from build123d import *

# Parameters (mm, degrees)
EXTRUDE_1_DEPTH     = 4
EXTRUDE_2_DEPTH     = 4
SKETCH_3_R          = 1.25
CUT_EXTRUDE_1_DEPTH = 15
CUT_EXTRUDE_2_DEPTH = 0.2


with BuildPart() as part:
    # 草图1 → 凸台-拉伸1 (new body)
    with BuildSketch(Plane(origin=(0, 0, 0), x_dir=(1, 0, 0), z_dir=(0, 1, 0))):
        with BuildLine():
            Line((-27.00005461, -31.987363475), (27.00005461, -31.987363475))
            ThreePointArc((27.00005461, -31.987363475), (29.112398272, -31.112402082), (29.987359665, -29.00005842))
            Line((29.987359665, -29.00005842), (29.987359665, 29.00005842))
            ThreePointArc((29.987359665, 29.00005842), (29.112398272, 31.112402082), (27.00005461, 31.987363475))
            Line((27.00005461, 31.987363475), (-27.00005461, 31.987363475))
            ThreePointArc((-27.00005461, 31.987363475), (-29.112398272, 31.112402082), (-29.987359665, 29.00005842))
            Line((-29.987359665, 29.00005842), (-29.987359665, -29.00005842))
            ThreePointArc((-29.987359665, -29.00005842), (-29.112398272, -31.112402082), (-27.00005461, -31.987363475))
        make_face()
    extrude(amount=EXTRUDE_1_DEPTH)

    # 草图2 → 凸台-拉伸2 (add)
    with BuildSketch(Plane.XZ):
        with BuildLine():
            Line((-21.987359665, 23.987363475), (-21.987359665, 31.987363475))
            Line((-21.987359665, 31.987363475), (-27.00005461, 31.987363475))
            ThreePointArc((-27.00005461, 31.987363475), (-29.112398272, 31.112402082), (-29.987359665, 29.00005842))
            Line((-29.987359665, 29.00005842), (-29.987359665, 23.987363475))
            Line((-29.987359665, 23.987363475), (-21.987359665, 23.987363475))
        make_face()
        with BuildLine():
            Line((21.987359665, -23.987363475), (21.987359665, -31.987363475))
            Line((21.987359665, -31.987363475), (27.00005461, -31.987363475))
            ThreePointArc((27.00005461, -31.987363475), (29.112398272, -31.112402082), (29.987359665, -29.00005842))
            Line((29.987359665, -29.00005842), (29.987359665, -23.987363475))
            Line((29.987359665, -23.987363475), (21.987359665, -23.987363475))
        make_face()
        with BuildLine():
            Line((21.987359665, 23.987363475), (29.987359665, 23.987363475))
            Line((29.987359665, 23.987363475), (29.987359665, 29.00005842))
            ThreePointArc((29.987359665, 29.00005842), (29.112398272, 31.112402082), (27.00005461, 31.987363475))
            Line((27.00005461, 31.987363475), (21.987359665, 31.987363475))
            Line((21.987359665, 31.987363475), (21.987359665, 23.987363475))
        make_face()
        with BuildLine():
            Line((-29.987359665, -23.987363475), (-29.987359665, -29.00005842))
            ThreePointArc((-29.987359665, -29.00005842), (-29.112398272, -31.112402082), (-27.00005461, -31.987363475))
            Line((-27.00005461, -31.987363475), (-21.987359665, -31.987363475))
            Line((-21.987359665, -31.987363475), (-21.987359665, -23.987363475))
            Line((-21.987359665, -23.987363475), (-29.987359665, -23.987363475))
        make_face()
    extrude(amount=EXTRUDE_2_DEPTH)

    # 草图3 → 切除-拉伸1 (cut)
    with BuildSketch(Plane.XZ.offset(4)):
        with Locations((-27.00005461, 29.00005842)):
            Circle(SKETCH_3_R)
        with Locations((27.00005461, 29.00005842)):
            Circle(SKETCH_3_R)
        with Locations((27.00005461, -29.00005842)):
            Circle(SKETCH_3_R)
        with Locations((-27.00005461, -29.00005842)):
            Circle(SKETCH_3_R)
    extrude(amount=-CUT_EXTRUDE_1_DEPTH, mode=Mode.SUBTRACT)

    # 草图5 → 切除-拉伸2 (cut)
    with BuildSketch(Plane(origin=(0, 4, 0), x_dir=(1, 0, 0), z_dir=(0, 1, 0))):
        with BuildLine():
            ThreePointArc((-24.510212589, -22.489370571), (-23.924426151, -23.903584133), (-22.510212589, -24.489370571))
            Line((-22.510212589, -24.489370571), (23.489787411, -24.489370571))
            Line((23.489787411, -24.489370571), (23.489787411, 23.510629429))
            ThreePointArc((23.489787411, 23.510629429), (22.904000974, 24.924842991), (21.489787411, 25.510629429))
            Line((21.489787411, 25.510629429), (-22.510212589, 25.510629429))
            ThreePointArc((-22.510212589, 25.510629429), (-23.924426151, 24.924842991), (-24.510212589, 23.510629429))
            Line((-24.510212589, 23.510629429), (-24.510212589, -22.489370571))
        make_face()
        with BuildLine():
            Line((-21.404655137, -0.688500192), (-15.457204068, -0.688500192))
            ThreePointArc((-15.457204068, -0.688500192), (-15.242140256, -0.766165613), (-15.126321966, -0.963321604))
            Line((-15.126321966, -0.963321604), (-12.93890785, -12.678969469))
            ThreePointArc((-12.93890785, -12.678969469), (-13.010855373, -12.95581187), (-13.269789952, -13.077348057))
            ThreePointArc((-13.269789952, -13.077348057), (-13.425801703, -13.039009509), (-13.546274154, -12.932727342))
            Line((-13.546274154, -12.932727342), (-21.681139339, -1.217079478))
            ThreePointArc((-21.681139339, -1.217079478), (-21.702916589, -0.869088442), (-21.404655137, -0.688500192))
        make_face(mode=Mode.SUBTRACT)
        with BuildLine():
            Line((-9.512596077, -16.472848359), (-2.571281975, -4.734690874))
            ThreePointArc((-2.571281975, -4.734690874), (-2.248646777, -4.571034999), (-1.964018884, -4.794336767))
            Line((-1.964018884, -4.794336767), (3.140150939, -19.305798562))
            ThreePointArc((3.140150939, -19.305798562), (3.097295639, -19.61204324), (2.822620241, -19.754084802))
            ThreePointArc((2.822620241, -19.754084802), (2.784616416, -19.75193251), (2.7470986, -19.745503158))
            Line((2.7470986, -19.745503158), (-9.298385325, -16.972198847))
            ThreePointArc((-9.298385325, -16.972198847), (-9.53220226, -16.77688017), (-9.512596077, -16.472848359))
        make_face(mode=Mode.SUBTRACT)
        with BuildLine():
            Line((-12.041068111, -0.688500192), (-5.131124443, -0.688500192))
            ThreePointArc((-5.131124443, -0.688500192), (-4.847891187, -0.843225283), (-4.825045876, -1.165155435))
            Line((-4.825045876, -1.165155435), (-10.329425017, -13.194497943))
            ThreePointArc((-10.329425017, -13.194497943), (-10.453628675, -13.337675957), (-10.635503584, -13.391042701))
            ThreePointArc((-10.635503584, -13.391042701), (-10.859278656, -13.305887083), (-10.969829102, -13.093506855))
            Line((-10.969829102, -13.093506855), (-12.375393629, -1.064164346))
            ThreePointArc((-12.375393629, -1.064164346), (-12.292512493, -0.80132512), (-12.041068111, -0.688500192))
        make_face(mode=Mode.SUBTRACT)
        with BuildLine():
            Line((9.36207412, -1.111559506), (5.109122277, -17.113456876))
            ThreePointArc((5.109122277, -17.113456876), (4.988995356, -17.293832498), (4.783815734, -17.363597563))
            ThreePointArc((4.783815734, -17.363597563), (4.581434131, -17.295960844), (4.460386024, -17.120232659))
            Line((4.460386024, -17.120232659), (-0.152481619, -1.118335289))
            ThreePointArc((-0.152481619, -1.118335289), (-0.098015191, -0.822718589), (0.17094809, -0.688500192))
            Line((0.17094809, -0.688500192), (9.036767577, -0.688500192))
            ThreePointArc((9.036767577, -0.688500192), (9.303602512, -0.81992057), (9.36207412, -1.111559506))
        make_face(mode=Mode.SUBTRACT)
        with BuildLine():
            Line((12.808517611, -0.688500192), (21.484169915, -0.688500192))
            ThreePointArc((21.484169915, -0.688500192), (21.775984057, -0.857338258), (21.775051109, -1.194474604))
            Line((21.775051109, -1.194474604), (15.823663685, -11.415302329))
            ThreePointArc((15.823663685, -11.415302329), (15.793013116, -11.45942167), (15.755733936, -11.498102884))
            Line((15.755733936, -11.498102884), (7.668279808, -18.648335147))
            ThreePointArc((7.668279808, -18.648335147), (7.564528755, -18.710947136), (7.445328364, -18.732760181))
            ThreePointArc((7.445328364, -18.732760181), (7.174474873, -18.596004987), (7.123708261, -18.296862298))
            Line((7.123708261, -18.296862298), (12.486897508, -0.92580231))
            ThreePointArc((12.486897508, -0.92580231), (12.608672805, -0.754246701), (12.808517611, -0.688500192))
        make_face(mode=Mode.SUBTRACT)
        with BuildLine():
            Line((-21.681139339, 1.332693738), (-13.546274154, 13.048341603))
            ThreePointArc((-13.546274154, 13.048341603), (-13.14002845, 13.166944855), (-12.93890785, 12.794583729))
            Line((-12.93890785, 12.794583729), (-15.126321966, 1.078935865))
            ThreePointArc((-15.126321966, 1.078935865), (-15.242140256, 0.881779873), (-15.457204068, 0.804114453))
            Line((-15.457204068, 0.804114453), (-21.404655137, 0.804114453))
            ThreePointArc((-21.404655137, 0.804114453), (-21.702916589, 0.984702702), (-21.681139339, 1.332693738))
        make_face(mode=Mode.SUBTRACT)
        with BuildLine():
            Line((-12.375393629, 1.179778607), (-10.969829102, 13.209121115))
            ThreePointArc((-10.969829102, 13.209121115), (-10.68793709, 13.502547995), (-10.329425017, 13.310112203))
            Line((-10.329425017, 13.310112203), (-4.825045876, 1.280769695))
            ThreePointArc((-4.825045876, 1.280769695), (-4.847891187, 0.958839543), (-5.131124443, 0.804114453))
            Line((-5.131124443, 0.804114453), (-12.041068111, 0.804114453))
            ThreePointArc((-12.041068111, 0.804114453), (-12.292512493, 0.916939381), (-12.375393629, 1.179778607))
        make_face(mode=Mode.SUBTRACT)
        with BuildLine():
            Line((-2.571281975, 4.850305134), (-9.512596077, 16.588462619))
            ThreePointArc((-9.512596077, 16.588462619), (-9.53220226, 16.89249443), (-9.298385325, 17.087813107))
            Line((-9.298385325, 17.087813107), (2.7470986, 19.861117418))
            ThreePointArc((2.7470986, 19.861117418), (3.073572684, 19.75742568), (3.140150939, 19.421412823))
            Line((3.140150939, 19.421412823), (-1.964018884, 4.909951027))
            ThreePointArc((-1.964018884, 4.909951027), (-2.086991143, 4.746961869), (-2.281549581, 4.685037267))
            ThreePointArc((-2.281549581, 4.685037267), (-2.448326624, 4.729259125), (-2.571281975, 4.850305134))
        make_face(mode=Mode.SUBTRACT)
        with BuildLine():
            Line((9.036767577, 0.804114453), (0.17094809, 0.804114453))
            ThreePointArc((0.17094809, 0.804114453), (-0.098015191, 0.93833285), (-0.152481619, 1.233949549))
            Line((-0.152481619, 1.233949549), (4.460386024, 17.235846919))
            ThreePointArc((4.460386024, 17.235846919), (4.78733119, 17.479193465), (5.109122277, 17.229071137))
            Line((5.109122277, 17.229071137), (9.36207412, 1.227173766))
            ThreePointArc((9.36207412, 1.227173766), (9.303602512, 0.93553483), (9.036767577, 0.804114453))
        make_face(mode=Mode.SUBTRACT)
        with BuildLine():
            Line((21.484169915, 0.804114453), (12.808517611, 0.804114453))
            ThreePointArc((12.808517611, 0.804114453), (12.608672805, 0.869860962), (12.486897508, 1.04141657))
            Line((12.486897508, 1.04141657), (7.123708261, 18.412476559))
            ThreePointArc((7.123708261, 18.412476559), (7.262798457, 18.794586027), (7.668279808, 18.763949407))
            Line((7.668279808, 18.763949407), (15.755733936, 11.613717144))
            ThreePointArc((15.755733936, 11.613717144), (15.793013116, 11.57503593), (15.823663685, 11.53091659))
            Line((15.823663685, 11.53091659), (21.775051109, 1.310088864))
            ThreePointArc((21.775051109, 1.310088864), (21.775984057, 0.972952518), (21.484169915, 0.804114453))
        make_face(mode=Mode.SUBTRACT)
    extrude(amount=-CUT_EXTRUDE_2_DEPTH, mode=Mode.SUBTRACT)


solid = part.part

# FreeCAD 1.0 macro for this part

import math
import FreeCAD as App
import Part
import Sketcher
from FreeCAD import Vector
Q = App.Units.Quantity

doc = App.newDocument("Part")
body = doc.addObject("PartDesign::Body", "Body")

sketch1 = body.newObject("Sketcher::SketchObject", "Sketch")
sketch1.AttachmentSupport = (doc.getObject("XZ_Plane"), [""])
sketch1.MapMode = "FlatFace"
sketch1.addGeometry(Part.LineSegment(Vector(-27, 32, 0), Vector(27, 32, 0)), False)
sketch1.addGeometry(Part.ArcOfCircle(Part.Circle(Vector(27, 29, 0), Vector(0, 0, 1), 3), math.radians(0), math.radians(90)), False)
sketch1.addGeometry(Part.LineSegment(Vector(30, 29, 0), Vector(30, -29, 0)), False)
sketch1.addGeometry(Part.ArcOfCircle(Part.Circle(Vector(27, -29, 0), Vector(0, 0, 1), 3), math.radians(-90), math.radians(0)), False)
sketch1.addGeometry(Part.LineSegment(Vector(27, -32, 0), Vector(-27, -32, 0)), False)
sketch1.addGeometry(Part.ArcOfCircle(Part.Circle(Vector(-27, -29, 0), Vector(0, 0, 1), 3), math.radians(180), math.radians(270)), False)
sketch1.addGeometry(Part.LineSegment(Vector(-30, -29, 0), Vector(-30, 29, 0)), False)
sketch1.addGeometry(Part.ArcOfCircle(Part.Circle(Vector(-27, 29, 0), Vector(0, 0, 1), 3), math.radians(90), math.radians(180)), False)
sketch1.addConstraint(Sketcher.Constraint("Tangent", 0, 2, 1, 2))
sketch1.addConstraint(Sketcher.Constraint("Tangent", 1, 1, 2, 1))
sketch1.addConstraint(Sketcher.Constraint("Tangent", 2, 2, 3, 2))
sketch1.addConstraint(Sketcher.Constraint("Tangent", 3, 1, 4, 1))
sketch1.addConstraint(Sketcher.Constraint("Tangent", 4, 2, 5, 2))
sketch1.addConstraint(Sketcher.Constraint("Tangent", 5, 1, 6, 1))
sketch1.addConstraint(Sketcher.Constraint("Tangent", 6, 2, 7, 2))
sketch1.addConstraint(Sketcher.Constraint("Tangent", 7, 1, 0, 1))
sketch1.addConstraint(Sketcher.Constraint("Horizontal", 0))
sketch1.addConstraint(Sketcher.Constraint("Vertical", 2))
sketch1.addConstraint(Sketcher.Constraint("Horizontal", 4))
sketch1.addConstraint(Sketcher.Constraint("Vertical", 6))
sketch1.addConstraint(Sketcher.Constraint("Equal", 1, 3))
sketch1.addConstraint(Sketcher.Constraint("Equal", 3, 5))
sketch1.addConstraint(Sketcher.Constraint("Equal", 5, 7))
sketch1.addConstraint(Sketcher.Constraint("Symmetric", 1, 3, 5, 3, -1, 1))
sketch1.addConstraint(Sketcher.Constraint("Radius", 1, Q("2.987305 mm")))
sketch1.addConstraint(Sketcher.Constraint("DistanceX", 0, 1, 0, 2, Q("54.000109 mm")))
sketch1.addConstraint(Sketcher.Constraint("DistanceY", 2, 2, 2, 1, Q("58.000117 mm")))
pad1 = body.newObject("PartDesign::Pad", "Pad")
pad1.Profile = sketch1
pad1.Length = 4
pad1.Reversed = True

sketch2 = body.newObject("Sketcher::SketchObject", "Sketch001")
sketch2.AttachmentSupport = (doc.getObject("XZ_Plane"), [""])
sketch2.MapMode = "FlatFace"
sketch2.addGeometry(Part.LineSegment(Vector(-22, 24, 0), Vector(-22, 32, 0)), False)
sketch2.addGeometry(Part.LineSegment(Vector(-22, 32, 0), Vector(-27, 32, 0)), False)
sketch2.addGeometry(Part.ArcOfCircle(Part.Circle(Vector(-27, 29, 0), Vector(0, 0, 1), 3), math.radians(90), math.radians(180)), False)
sketch2.addGeometry(Part.LineSegment(Vector(-30, 29, 0), Vector(-30, 24, 0)), False)
sketch2.addGeometry(Part.LineSegment(Vector(-30, 24, 0), Vector(-22, 24, 0)), False)
sketch2.addGeometry(Part.LineSegment(Vector(22, -24, 0), Vector(22, -32, 0)), False)
sketch2.addGeometry(Part.LineSegment(Vector(22, -32, 0), Vector(27, -32, 0)), False)
sketch2.addGeometry(Part.ArcOfCircle(Part.Circle(Vector(27, -29, 0), Vector(0, 0, 1), 3), math.radians(-90), math.radians(0)), False)
sketch2.addGeometry(Part.LineSegment(Vector(30, -29, 0), Vector(30, -24, 0)), False)
sketch2.addGeometry(Part.LineSegment(Vector(30, -24, 0), Vector(22, -24, 0)), False)
sketch2.addGeometry(Part.LineSegment(Vector(22, 24, 0), Vector(30, 24, 0)), False)
sketch2.addGeometry(Part.LineSegment(Vector(30, 24, 0), Vector(30, 29, 0)), False)
sketch2.addGeometry(Part.ArcOfCircle(Part.Circle(Vector(27, 29, 0), Vector(0, 0, 1), 3), math.radians(0), math.radians(90)), False)
sketch2.addGeometry(Part.LineSegment(Vector(27, 32, 0), Vector(22, 32, 0)), False)
sketch2.addGeometry(Part.LineSegment(Vector(22, 32, 0), Vector(22, 24, 0)), False)
sketch2.addGeometry(Part.LineSegment(Vector(-30, -24, 0), Vector(-30, -29, 0)), False)
sketch2.addGeometry(Part.ArcOfCircle(Part.Circle(Vector(-27, -29, 0), Vector(0, 0, 1), 3), math.radians(180), math.radians(270)), False)
sketch2.addGeometry(Part.LineSegment(Vector(-27, -32, 0), Vector(-22, -32, 0)), False)
sketch2.addGeometry(Part.LineSegment(Vector(-22, -32, 0), Vector(-22, -24, 0)), False)
sketch2.addGeometry(Part.LineSegment(Vector(-22, -24, 0), Vector(-30, -24, 0)), False)
sketch2.addConstraint(Sketcher.Constraint("Coincident", 0, 2, 1, 1))
sketch2.addConstraint(Sketcher.Constraint("Tangent", 1, 2, 2, 1))
sketch2.addConstraint(Sketcher.Constraint("Tangent", 2, 2, 3, 1))
sketch2.addConstraint(Sketcher.Constraint("Coincident", 3, 2, 4, 1))
sketch2.addConstraint(Sketcher.Constraint("Coincident", 4, 2, 0, 1))
sketch2.addConstraint(Sketcher.Constraint("Coincident", 5, 2, 6, 1))
sketch2.addConstraint(Sketcher.Constraint("Tangent", 6, 2, 7, 1))
sketch2.addConstraint(Sketcher.Constraint("Tangent", 7, 2, 8, 1))
sketch2.addConstraint(Sketcher.Constraint("Coincident", 8, 2, 9, 1))
sketch2.addConstraint(Sketcher.Constraint("Coincident", 9, 2, 5, 1))
sketch2.addConstraint(Sketcher.Constraint("Coincident", 10, 2, 11, 1))
sketch2.addConstraint(Sketcher.Constraint("Tangent", 11, 2, 12, 1))
sketch2.addConstraint(Sketcher.Constraint("Tangent", 12, 2, 13, 1))
sketch2.addConstraint(Sketcher.Constraint("Coincident", 13, 2, 14, 1))
sketch2.addConstraint(Sketcher.Constraint("Coincident", 14, 2, 10, 1))
sketch2.addConstraint(Sketcher.Constraint("Tangent", 15, 2, 16, 1))
sketch2.addConstraint(Sketcher.Constraint("Tangent", 16, 2, 17, 1))
sketch2.addConstraint(Sketcher.Constraint("Coincident", 17, 2, 18, 1))
sketch2.addConstraint(Sketcher.Constraint("Coincident", 18, 2, 19, 1))
sketch2.addConstraint(Sketcher.Constraint("Coincident", 19, 2, 15, 1))
sketch2.addConstraint(Sketcher.Constraint("Vertical", 0))
sketch2.addConstraint(Sketcher.Constraint("Horizontal", 1))
sketch2.addConstraint(Sketcher.Constraint("Vertical", 3))
sketch2.addConstraint(Sketcher.Constraint("Horizontal", 4))
sketch2.addConstraint(Sketcher.Constraint("Vertical", 5))
sketch2.addConstraint(Sketcher.Constraint("Horizontal", 6))
sketch2.addConstraint(Sketcher.Constraint("Vertical", 8))
sketch2.addConstraint(Sketcher.Constraint("Horizontal", 9))
sketch2.addConstraint(Sketcher.Constraint("Horizontal", 10))
sketch2.addConstraint(Sketcher.Constraint("Vertical", 11))
sketch2.addConstraint(Sketcher.Constraint("Horizontal", 13))
sketch2.addConstraint(Sketcher.Constraint("Vertical", 14))
sketch2.addConstraint(Sketcher.Constraint("Vertical", 15))
sketch2.addConstraint(Sketcher.Constraint("Horizontal", 17))
sketch2.addConstraint(Sketcher.Constraint("Vertical", 18))
sketch2.addConstraint(Sketcher.Constraint("Horizontal", 19))
sketch2.addConstraint(Sketcher.Constraint("Equal", 2, 7))
sketch2.addConstraint(Sketcher.Constraint("Equal", 7, 12))
sketch2.addConstraint(Sketcher.Constraint("Equal", 12, 16))
sketch2.addConstraint(Sketcher.Constraint("Symmetric", 2, 3, 7, 3, -1, 1))
sketch2.addConstraint(Sketcher.Constraint("Symmetric", 12, 3, 16, 3, -1, 1))
sketch2.addConstraint(Sketcher.Constraint("Symmetric", 4, 2, 9, 2, -1, 1))
sketch2.addConstraint(Sketcher.Constraint("Symmetric", 14, 2, 18, 2, -1, 1))
sketch2.addConstraint(Sketcher.Constraint("Symmetric", 2, 3, 12, 3, -2))
sketch2.addConstraint(Sketcher.Constraint("Symmetric", 4, 2, 14, 2, -2))
sketch2.addConstraint(Sketcher.Constraint("Equal", 19, 0))
sketch2.addConstraint(Sketcher.Constraint("DistanceX", 4, 1, 4, 2, Q("8 mm")))
sketch2.addConstraint(Sketcher.Constraint("Radius", 2, Q("2.987305 mm")))
sketch2.addConstraint(Sketcher.Constraint("DistanceY", -1, 1, 2, 3, Q("29.000058 mm")))
sketch2.addConstraint(Sketcher.Constraint("DistanceX", 0, 2, -1, 1, Q("21.98736 mm")))
pad2 = body.newObject("PartDesign::Pad", "Pad001")
pad2.Profile = sketch2
pad2.Length = 4

sketch3 = body.newObject("Sketcher::SketchObject", "Sketch002")
sketch3.AttachmentSupport = (doc.getObject("XZ_Plane"), [""])
sketch3.MapMode = "FlatFace"
sketch3.AttachmentOffset = App.Placement(Vector(0, 0, 4), App.Rotation())
sketch3.addGeometry(Part.Circle(Vector(-27, 29, 0), Vector(0, 0, 1), 1.2), False)
sketch3.addGeometry(Part.Circle(Vector(27, 29, 0), Vector(0, 0, 1), 1.2), False)
sketch3.addGeometry(Part.Circle(Vector(27, -29, 0), Vector(0, 0, 1), 1.2), False)
sketch3.addGeometry(Part.Circle(Vector(-27, -29, 0), Vector(0, 0, 1), 1.2), False)
sketch3.addConstraint(Sketcher.Constraint("Equal", 0, 1))
sketch3.addConstraint(Sketcher.Constraint("Equal", 1, 2))
sketch3.addConstraint(Sketcher.Constraint("Equal", 2, 3))
sketch3.addConstraint(Sketcher.Constraint("Symmetric", 0, 3, 2, 3, -1, 1))
sketch3.addConstraint(Sketcher.Constraint("Symmetric", 1, 3, 3, 3, -1, 1))
sketch3.addConstraint(Sketcher.Constraint("Symmetric", 0, 3, 1, 3, -2))
sketch3.addConstraint(Sketcher.Constraint("Diameter", 0, Q("2.5 mm")))
sketch3.addConstraint(Sketcher.Constraint("DistanceY", -1, 1, 0, 3, Q("29.000058 mm")))
sketch3.addConstraint(Sketcher.Constraint("DistanceX", 0, 3, 1, 3, Q("54.000109 mm")))
pocket1 = body.newObject("PartDesign::Pocket", "Pocket")
pocket1.Profile = sketch3
pocket1.Length = 15

sketch4 = body.newObject("Sketcher::SketchObject", "Sketch003")
sketch4.AttachmentSupport = (doc.getObject("XZ_Plane"), [""])
sketch4.MapMode = "FlatFace"
sketch4.AttachmentOffset = App.Placement(Vector(0, 0, -4), App.Rotation())
sketch4.addGeometry(Part.ArcOfCircle(Part.Circle(Vector(-22.510213, 22.489371, 0), Vector(0, 0, 1), 2), math.radians(90), math.radians(180)), False)
sketch4.addGeometry(Part.LineSegment(Vector(-22.510213, 24.489371, 0), Vector(23.489787, 24.489371, 0)), False)
sketch4.addGeometry(Part.LineSegment(Vector(23.489787, 24.489371, 0), Vector(23.489787, -23.510629, 0)), False)
sketch4.addGeometry(Part.ArcOfCircle(Part.Circle(Vector(21.489787, -23.510629, 0), Vector(0, 0, 1), 2), math.radians(-90), math.radians(0)), False)
sketch4.addGeometry(Part.LineSegment(Vector(21.489787, -25.510629, 0), Vector(-22.510213, -25.510629, 0)), False)
sketch4.addGeometry(Part.ArcOfCircle(Part.Circle(Vector(-22.510213, -23.510629, 0), Vector(0, 0, 1), 2), math.radians(-180), math.radians(-90)), False)
sketch4.addGeometry(Part.LineSegment(Vector(-24.510213, -23.510629, 0), Vector(-24.510213, 22.489371, 0)), False)
sketch4.addGeometry(Part.ArcOfCircle(Part.Circle(Vector(-9.222864, 16.64418, 0), Vector(0, 0, 1), 0.3366), math.radians(102.965608), math.radians(210.597784)), False)
sketch4.addGeometry(Part.LineSegment(Vector(-9.512596, 16.472848, 0), Vector(-2.571282, 4.734691, 0)), False)
sketch4.addGeometry(Part.ArcOfCircle(Part.Circle(Vector(-2.28155, 4.906023, 0), Vector(0, 0, 1), 0.3366), math.radians(-149.402216), math.radians(-19.37849)), False)
sketch4.addGeometry(Part.LineSegment(Vector(-1.964019, 4.794337, 0), Vector(3.140151, 19.305799, 0)), False)
sketch4.addGeometry(Part.ArcOfCircle(Part.Circle(Vector(2.82262, 19.417485, 0), Vector(0, 0, 1), 0.3366), math.radians(-19.37849), math.radians(90)), False)
sketch4.addGeometry(Part.ArcOfCircle(Part.Circle(Vector(2.82262, 19.417485, 0), Vector(0, 0, 1), 0.3366), math.radians(90), math.radians(102.965607)), False)
sketch4.addGeometry(Part.LineSegment(Vector(2.747099, 19.745503, 0), Vector(-9.298385, 16.972199, 0)), False)
sketch4.addGeometry(Part.ArcOfCircle(Part.Circle(Vector(-21.404655, 1.0251, 0), Vector(0, 0, 1), 0.3366), math.radians(145.225473), math.radians(270)), False)
sketch4.addGeometry(Part.LineSegment(Vector(-21.404655, 0.6885, 0), Vector(-15.457204, 0.6885, 0)), False)
sketch4.addGeometry(Part.ArcOfCircle(Part.Circle(Vector(-15.457204, 1.0251, 0), Vector(0, 0, 1), 0.3366), math.radians(-90), math.radians(-10.575854)), False)
sketch4.addGeometry(Part.LineSegment(Vector(-15.126322, 0.963322, 0), Vector(-12.938908, 12.678969, 0)), False)
sketch4.addGeometry(Part.ArcOfCircle(Part.Circle(Vector(-13.26979, 12.740748, 0), Vector(0, 0, 1), 0.3366), math.radians(-10.575854), math.radians(90)), False)
sketch4.addGeometry(Part.ArcOfCircle(Part.Circle(Vector(-13.26979, 12.740748, 0), Vector(0, 0, 1), 0.3366), math.radians(90), math.radians(145.225473)), False)
sketch4.addGeometry(Part.LineSegment(Vector(-13.546274, 12.932727, 0), Vector(-21.681139, 1.217079, 0)), False)
sketch4.addGeometry(Part.ArcOfCircle(Part.Circle(Vector(-12.041068, 1.0251, 0), Vector(0, 0, 1), 0.3366), math.radians(173.335513), math.radians(270)), False)
sketch4.addGeometry(Part.LineSegment(Vector(-12.041068, 0.6885, 0), Vector(-5.131124, 0.6885, 0)), False)
sketch4.addGeometry(Part.ArcOfCircle(Part.Circle(Vector(-5.131124, 1.0251, 0), Vector(0, 0, 1), 0.3366), math.radians(-90), math.radians(24.587856)), False)
sketch4.addGeometry(Part.LineSegment(Vector(-4.825046, 1.165155, 0), Vector(-10.329425, 13.194498, 0)), False)
sketch4.addGeometry(Part.ArcOfCircle(Part.Circle(Vector(-10.635504, 13.054443, 0), Vector(0, 0, 1), 0.3366), math.radians(24.587856), math.radians(90)), False)
sketch4.addGeometry(Part.ArcOfCircle(Part.Circle(Vector(-10.635504, 13.054443, 0), Vector(0, 0, 1), 0.3366), math.radians(90), math.radians(173.335513)), False)
sketch4.addGeometry(Part.LineSegment(Vector(-10.969829, 13.093507, 0), Vector(-12.375394, 1.064164, 0)), False)
sketch4.addGeometry(Part.ArcOfCircle(Part.Circle(Vector(9.036768, 1.0251, 0), Vector(0, 0, 1), 0.3366), math.radians(-90), math.radians(14.883869)), False)
sketch4.addGeometry(Part.LineSegment(Vector(9.362074, 1.11156, 0), Vector(5.109122, 17.113457, 0)), False)
sketch4.addGeometry(Part.ArcOfCircle(Part.Circle(Vector(4.783816, 17.026998, 0), Vector(0, 0, 1), 0.3366), math.radians(14.883869), math.radians(90)), False)
sketch4.addGeometry(Part.ArcOfCircle(Part.Circle(Vector(4.783816, 17.026998, 0), Vector(0, 0, 1), 0.3366), math.radians(90), math.radians(163.919313)), False)
sketch4.addGeometry(Part.LineSegment(Vector(4.460386, 17.120233, 0), Vector(-0.152482, 1.118335, 0)), False)
sketch4.addGeometry(Part.ArcOfCircle(Part.Circle(Vector(0.170948, 1.0251, 0), Vector(0, 0, 1), 0.3366), math.radians(163.919313), math.radians(270)), False)
sketch4.addGeometry(Part.LineSegment(Vector(0.170948, 0.6885, 0), Vector(9.036768, 0.6885, 0)), False)
sketch4.addGeometry(Part.ArcOfCircle(Part.Circle(Vector(12.808518, 1.0251, 0), Vector(0, 0, 1), 0.3366), math.radians(-162.842306), math.radians(-90)), False)
sketch4.addGeometry(Part.LineSegment(Vector(12.808518, 0.6885, 0), Vector(21.48417, 0.6885, 0)), False)
sketch4.addGeometry(Part.ArcOfCircle(Part.Circle(Vector(21.48417, 1.0251, 0), Vector(0, 0, 1), 0.3366), math.radians(-90), math.radians(30.211403)), False)
sketch4.addGeometry(Part.LineSegment(Vector(21.775051, 1.194475, 0), Vector(15.823664, 11.415302, 0)), False)
sketch4.addGeometry(Part.ArcOfCircle(Part.Circle(Vector(15.532783, 11.245928, 0), Vector(0, 0, 1), 0.3366), math.radians(30.211403), math.radians(48.519648)), False)
sketch4.addGeometry(Part.LineSegment(Vector(15.755734, 11.498103, 0), Vector(7.66828, 18.648335, 0)), False)
sketch4.addGeometry(Part.ArcOfCircle(Part.Circle(Vector(7.445328, 18.39616, 0), Vector(0, 0, 1), 0.3366), math.radians(48.519648), math.radians(90)), False)
sketch4.addGeometry(Part.ArcOfCircle(Part.Circle(Vector(7.445328, 18.39616, 0), Vector(0, 0, 1), 0.3366), math.radians(90), math.radians(197.157695)), False)
sketch4.addGeometry(Part.LineSegment(Vector(7.123708, 18.296862, 0), Vector(12.486898, 0.925802, 0)), False)
sketch4.addGeometry(Part.ArcOfCircle(Part.Circle(Vector(-21.404655, -1.140714, 0), Vector(0, 0, 1), 0.3366), math.radians(90), math.radians(214.774527)), False)
sketch4.addGeometry(Part.LineSegment(Vector(-21.681139, -1.332694, 0), Vector(-13.546274, -13.048342, 0)), False)
sketch4.addGeometry(Part.ArcOfCircle(Part.Circle(Vector(-13.26979, -12.856362, 0), Vector(0, 0, 1), 0.3366), math.radians(-145.225473), math.radians(10.575854)), False)
sketch4.addGeometry(Part.LineSegment(Vector(-12.938908, -12.794584, 0), Vector(-15.126322, -1.078936, 0)), False)
sketch4.addGeometry(Part.ArcOfCircle(Part.Circle(Vector(-15.457204, -1.140714, 0), Vector(0, 0, 1), 0.3366), math.radians(10.575854), math.radians(90)), False)
sketch4.addGeometry(Part.LineSegment(Vector(-15.457204, -0.804114, 0), Vector(-21.404655, -0.804114, 0)), False)
sketch4.addGeometry(Part.ArcOfCircle(Part.Circle(Vector(-12.041068, -1.140714, 0), Vector(0, 0, 1), 0.3366), math.radians(90), math.radians(186.664487)), False)
sketch4.addGeometry(Part.LineSegment(Vector(-12.375394, -1.179779, 0), Vector(-10.969829, -13.209121, 0)), False)
sketch4.addGeometry(Part.ArcOfCircle(Part.Circle(Vector(-10.635504, -13.170057, 0), Vector(0, 0, 1), 0.3366), math.radians(-173.335513), math.radians(-24.587856)), False)
sketch4.addGeometry(Part.LineSegment(Vector(-10.329425, -13.310112, 0), Vector(-4.825046, -1.28077, 0)), False)
sketch4.addGeometry(Part.ArcOfCircle(Part.Circle(Vector(-5.131124, -1.140714, 0), Vector(0, 0, 1), 0.3366), math.radians(-24.587856), math.radians(90)), False)
sketch4.addGeometry(Part.LineSegment(Vector(-5.131124, -0.804114, 0), Vector(-12.041068, -0.804114, 0)), False)
sketch4.addGeometry(Part.ArcOfCircle(Part.Circle(Vector(-2.28155, -5.021637, 0), Vector(0, 0, 1), 0.3366), math.radians(90), math.radians(149.402216)), False)
sketch4.addGeometry(Part.LineSegment(Vector(-2.571282, -4.850305, 0), Vector(-9.512596, -16.588463, 0)), False)
sketch4.addGeometry(Part.ArcOfCircle(Part.Circle(Vector(-9.222864, -16.759795, 0), Vector(0, 0, 1), 0.3366), math.radians(149.402216), math.radians(257.034392)), False)
sketch4.addGeometry(Part.LineSegment(Vector(-9.298385, -17.087813, 0), Vector(2.747099, -19.861117, 0)), False)
sketch4.addGeometry(Part.ArcOfCircle(Part.Circle(Vector(2.82262, -19.533099, 0), Vector(0, 0, 1), 0.3366), math.radians(-102.965607), math.radians(19.37849)), False)
sketch4.addGeometry(Part.LineSegment(Vector(3.140151, -19.421413, 0), Vector(-1.964019, -4.909951, 0)), False)
sketch4.addGeometry(Part.ArcOfCircle(Part.Circle(Vector(-2.28155, -5.021637, 0), Vector(0, 0, 1), 0.3366), math.radians(19.37849), math.radians(90)), False)
sketch4.addGeometry(Part.ArcOfCircle(Part.Circle(Vector(9.036768, -1.140714, 0), Vector(0, 0, 1), 0.3366), math.radians(-14.883869), math.radians(90)), False)
sketch4.addGeometry(Part.LineSegment(Vector(9.036768, -0.804114, 0), Vector(0.170948, -0.804114, 0)), False)
sketch4.addGeometry(Part.ArcOfCircle(Part.Circle(Vector(0.170948, -1.140714, 0), Vector(0, 0, 1), 0.3366), math.radians(90), math.radians(196.080687)), False)
sketch4.addGeometry(Part.LineSegment(Vector(-0.152482, -1.23395, 0), Vector(4.460386, -17.235847, 0)), False)
sketch4.addGeometry(Part.ArcOfCircle(Part.Circle(Vector(4.783816, -17.142612, 0), Vector(0, 0, 1), 0.3366), math.radians(-163.919313), math.radians(-14.883869)), False)
sketch4.addGeometry(Part.LineSegment(Vector(5.109122, -17.229071, 0), Vector(9.362074, -1.227174, 0)), False)
sketch4.addGeometry(Part.ArcOfCircle(Part.Circle(Vector(21.48417, -1.140714, 0), Vector(0, 0, 1), 0.3366), math.radians(-30.211404), math.radians(90)), False)
sketch4.addGeometry(Part.LineSegment(Vector(21.48417, -0.804114, 0), Vector(12.808518, -0.804114, 0)), False)
sketch4.addGeometry(Part.ArcOfCircle(Part.Circle(Vector(12.808518, -1.140714, 0), Vector(0, 0, 1), 0.3366), math.radians(90), math.radians(162.842305)), False)
sketch4.addGeometry(Part.LineSegment(Vector(12.486898, -1.041417, 0), Vector(7.123708, -18.412477, 0)), False)
sketch4.addGeometry(Part.ArcOfCircle(Part.Circle(Vector(7.445328, -18.511774, 0), Vector(0, 0, 1), 0.3366), math.radians(162.842306), math.radians(311.480352)), False)
sketch4.addGeometry(Part.LineSegment(Vector(7.66828, -18.763949, 0), Vector(15.755734, -11.613717, 0)), False)
sketch4.addGeometry(Part.ArcOfCircle(Part.Circle(Vector(15.532782, -11.361542, 0), Vector(0, 0, 1), 0.3366), math.radians(-48.519648), math.radians(-30.211404)), False)
sketch4.addGeometry(Part.LineSegment(Vector(15.823664, -11.530917, 0), Vector(21.775051, -1.310089, 0)), False)
sketch4.addConstraint(Sketcher.Constraint("Coincident", 0, 1, 1, 1))
sketch4.addConstraint(Sketcher.Constraint("Coincident", 1, 2, 2, 1))
sketch4.addConstraint(Sketcher.Constraint("Coincident", 2, 2, 3, 2))
sketch4.addConstraint(Sketcher.Constraint("Coincident", 3, 1, 4, 1))
sketch4.addConstraint(Sketcher.Constraint("Coincident", 4, 2, 5, 2))
sketch4.addConstraint(Sketcher.Constraint("Coincident", 5, 1, 6, 1))
sketch4.addConstraint(Sketcher.Constraint("Coincident", 6, 2, 0, 2))
sketch4.addConstraint(Sketcher.Constraint("Coincident", 7, 2, 8, 1))
sketch4.addConstraint(Sketcher.Constraint("Coincident", 8, 2, 9, 1))
sketch4.addConstraint(Sketcher.Constraint("Coincident", 9, 2, 10, 1))
sketch4.addConstraint(Sketcher.Constraint("Coincident", 10, 2, 11, 1))
sketch4.addConstraint(Sketcher.Constraint("Coincident", 11, 2, 12, 1))
sketch4.addConstraint(Sketcher.Constraint("Coincident", 12, 2, 13, 1))
sketch4.addConstraint(Sketcher.Constraint("Coincident", 13, 2, 7, 1))
sketch4.addConstraint(Sketcher.Constraint("Coincident", 14, 2, 15, 1))
sketch4.addConstraint(Sketcher.Constraint("Coincident", 15, 2, 16, 1))
sketch4.addConstraint(Sketcher.Constraint("Coincident", 16, 2, 17, 1))
sketch4.addConstraint(Sketcher.Constraint("Coincident", 17, 2, 18, 1))
sketch4.addConstraint(Sketcher.Constraint("Coincident", 18, 2, 19, 1))
sketch4.addConstraint(Sketcher.Constraint("Coincident", 19, 2, 20, 1))
sketch4.addConstraint(Sketcher.Constraint("Coincident", 20, 2, 14, 1))
sketch4.addConstraint(Sketcher.Constraint("Coincident", 21, 2, 22, 1))
sketch4.addConstraint(Sketcher.Constraint("Coincident", 22, 2, 23, 1))
sketch4.addConstraint(Sketcher.Constraint("Coincident", 23, 2, 24, 1))
sketch4.addConstraint(Sketcher.Constraint("Coincident", 24, 2, 25, 1))
sketch4.addConstraint(Sketcher.Constraint("Coincident", 25, 2, 26, 1))
sketch4.addConstraint(Sketcher.Constraint("Coincident", 26, 2, 27, 1))
sketch4.addConstraint(Sketcher.Constraint("Coincident", 27, 2, 21, 1))
sketch4.addConstraint(Sketcher.Constraint("Coincident", 28, 2, 29, 1))
sketch4.addConstraint(Sketcher.Constraint("Coincident", 29, 2, 30, 1))
sketch4.addConstraint(Sketcher.Constraint("Coincident", 30, 2, 31, 1))
sketch4.addConstraint(Sketcher.Constraint("Coincident", 31, 2, 32, 1))
sketch4.addConstraint(Sketcher.Constraint("Coincident", 32, 2, 33, 1))
sketch4.addConstraint(Sketcher.Constraint("Coincident", 33, 2, 34, 1))
sketch4.addConstraint(Sketcher.Constraint("Coincident", 34, 2, 28, 1))
sketch4.addConstraint(Sketcher.Constraint("Coincident", 35, 2, 36, 1))
sketch4.addConstraint(Sketcher.Constraint("Coincident", 36, 2, 37, 1))
sketch4.addConstraint(Sketcher.Constraint("Coincident", 37, 2, 38, 1))
sketch4.addConstraint(Sketcher.Constraint("Coincident", 38, 2, 39, 1))
sketch4.addConstraint(Sketcher.Constraint("Coincident", 39, 2, 40, 1))
sketch4.addConstraint(Sketcher.Constraint("Coincident", 40, 2, 41, 1))
sketch4.addConstraint(Sketcher.Constraint("Coincident", 41, 2, 42, 1))
sketch4.addConstraint(Sketcher.Constraint("Coincident", 42, 2, 43, 1))
sketch4.addConstraint(Sketcher.Constraint("Coincident", 43, 2, 35, 1))
sketch4.addConstraint(Sketcher.Constraint("Coincident", 44, 2, 45, 1))
sketch4.addConstraint(Sketcher.Constraint("Coincident", 45, 2, 46, 1))
sketch4.addConstraint(Sketcher.Constraint("Coincident", 46, 2, 47, 1))
sketch4.addConstraint(Sketcher.Constraint("Coincident", 47, 2, 48, 1))
sketch4.addConstraint(Sketcher.Constraint("Coincident", 48, 2, 49, 1))
sketch4.addConstraint(Sketcher.Constraint("Coincident", 49, 2, 44, 1))
sketch4.addConstraint(Sketcher.Constraint("Coincident", 50, 2, 51, 1))
sketch4.addConstraint(Sketcher.Constraint("Coincident", 51, 2, 52, 1))
sketch4.addConstraint(Sketcher.Constraint("Coincident", 52, 2, 53, 1))
sketch4.addConstraint(Sketcher.Constraint("Coincident", 53, 2, 54, 1))
sketch4.addConstraint(Sketcher.Constraint("Coincident", 54, 2, 55, 1))
sketch4.addConstraint(Sketcher.Constraint("Coincident", 55, 2, 50, 1))
sketch4.addConstraint(Sketcher.Constraint("Coincident", 56, 2, 57, 1))
sketch4.addConstraint(Sketcher.Constraint("Coincident", 57, 2, 58, 1))
sketch4.addConstraint(Sketcher.Constraint("Coincident", 58, 2, 59, 1))
sketch4.addConstraint(Sketcher.Constraint("Coincident", 59, 2, 60, 1))
sketch4.addConstraint(Sketcher.Constraint("Coincident", 60, 2, 61, 1))
sketch4.addConstraint(Sketcher.Constraint("Coincident", 61, 2, 62, 1))
sketch4.addConstraint(Sketcher.Constraint("Coincident", 62, 2, 56, 1))
sketch4.addConstraint(Sketcher.Constraint("Coincident", 63, 2, 64, 1))
sketch4.addConstraint(Sketcher.Constraint("Coincident", 64, 2, 65, 1))
sketch4.addConstraint(Sketcher.Constraint("Coincident", 65, 2, 66, 1))
sketch4.addConstraint(Sketcher.Constraint("Coincident", 66, 2, 67, 1))
sketch4.addConstraint(Sketcher.Constraint("Coincident", 67, 2, 68, 1))
sketch4.addConstraint(Sketcher.Constraint("Coincident", 68, 2, 63, 1))
sketch4.addConstraint(Sketcher.Constraint("Coincident", 69, 2, 70, 1))
sketch4.addConstraint(Sketcher.Constraint("Coincident", 70, 2, 71, 1))
sketch4.addConstraint(Sketcher.Constraint("Coincident", 71, 2, 72, 1))
sketch4.addConstraint(Sketcher.Constraint("Coincident", 72, 2, 73, 1))
sketch4.addConstraint(Sketcher.Constraint("Coincident", 73, 2, 74, 1))
sketch4.addConstraint(Sketcher.Constraint("Coincident", 74, 2, 75, 1))
sketch4.addConstraint(Sketcher.Constraint("Coincident", 75, 2, 76, 1))
sketch4.addConstraint(Sketcher.Constraint("Coincident", 76, 2, 69, 1))
sketch4.addConstraint(Sketcher.Constraint("Horizontal", 1))
sketch4.addConstraint(Sketcher.Constraint("Vertical", 2))
sketch4.addConstraint(Sketcher.Constraint("Horizontal", 4))
sketch4.addConstraint(Sketcher.Constraint("Vertical", 6))
sketch4.addConstraint(Sketcher.Constraint("Horizontal", 15))
sketch4.addConstraint(Sketcher.Constraint("Horizontal", 22))
sketch4.addConstraint(Sketcher.Constraint("Horizontal", 34))
sketch4.addConstraint(Sketcher.Constraint("Horizontal", 36))
sketch4.addConstraint(Sketcher.Constraint("Horizontal", 49))
sketch4.addConstraint(Sketcher.Constraint("Horizontal", 55))
sketch4.addConstraint(Sketcher.Constraint("Horizontal", 64))
sketch4.addConstraint(Sketcher.Constraint("Horizontal", 70))
sketch4.addConstraint(Sketcher.Constraint("Coincident", 12, 3, 11, 3))
sketch4.addConstraint(Sketcher.Constraint("Coincident", 19, 3, 18, 3))
sketch4.addConstraint(Sketcher.Constraint("Coincident", 26, 3, 25, 3))
sketch4.addConstraint(Sketcher.Constraint("Coincident", 31, 3, 30, 3))
sketch4.addConstraint(Sketcher.Constraint("Coincident", 42, 3, 41, 3))
sketch4.addConstraint(Sketcher.Constraint("Coincident", 62, 3, 56, 3))
sketch4.addConstraint(Sketcher.Constraint("Radius", 0, Q("2 mm")))
sketch4.addConstraint(Sketcher.Constraint("Radius", 3, Q("2 mm")))
sketch4.addConstraint(Sketcher.Constraint("Radius", 5, Q("2 mm")))
sketch4.addConstraint(Sketcher.Constraint("DistanceX", 1, 1, 1, 2, Q("46 mm")))
sketch4.addConstraint(Sketcher.Constraint("DistanceX", 4, 2, 4, 1, Q("44 mm")))
sketch4.addConstraint(Sketcher.Constraint("DistanceY", 2, 2, 2, 1, Q("48 mm")))
sketch4.addConstraint(Sketcher.Constraint("DistanceY", 6, 1, 6, 2, Q("46 mm")))
sketch4.addConstraint(Sketcher.Constraint("Radius", 7, Q("0.3366 mm")))
sketch4.addConstraint(Sketcher.Constraint("Radius", 9, Q("0.3366 mm")))
sketch4.addConstraint(Sketcher.Constraint("Radius", 11, Q("0.3366 mm")))
sketch4.addConstraint(Sketcher.Constraint("Radius", 14, Q("0.3366 mm")))
sketch4.addConstraint(Sketcher.Constraint("Radius", 16, Q("0.3366 mm")))
sketch4.addConstraint(Sketcher.Constraint("Radius", 18, Q("0.3366 mm")))
sketch4.addConstraint(Sketcher.Constraint("Radius", 21, Q("0.3366 mm")))
sketch4.addConstraint(Sketcher.Constraint("Radius", 23, Q("0.3366 mm")))
sketch4.addConstraint(Sketcher.Constraint("Radius", 25, Q("0.3366 mm")))
sketch4.addConstraint(Sketcher.Constraint("Radius", 28, Q("0.3366 mm")))
sketch4.addConstraint(Sketcher.Constraint("Radius", 30, Q("0.3366 mm")))
sketch4.addConstraint(Sketcher.Constraint("Radius", 33, Q("0.3366 mm")))
sketch4.addConstraint(Sketcher.Constraint("Radius", 35, Q("0.3366 mm")))
sketch4.addConstraint(Sketcher.Constraint("Radius", 37, Q("0.3366 mm")))
sketch4.addConstraint(Sketcher.Constraint("Radius", 39, Q("0.3366 mm")))
sketch4.addConstraint(Sketcher.Constraint("Radius", 41, Q("0.3366 mm")))
sketch4.addConstraint(Sketcher.Constraint("Radius", 44, Q("0.3366 mm")))
sketch4.addConstraint(Sketcher.Constraint("Radius", 46, Q("0.3366 mm")))
sketch4.addConstraint(Sketcher.Constraint("Radius", 48, Q("0.3366 mm")))
sketch4.addConstraint(Sketcher.Constraint("Radius", 50, Q("0.3366 mm")))
sketch4.addConstraint(Sketcher.Constraint("Radius", 52, Q("0.3366 mm")))
sketch4.addConstraint(Sketcher.Constraint("Radius", 54, Q("0.3366 mm")))
sketch4.addConstraint(Sketcher.Constraint("Radius", 56, Q("0.3366 mm")))
sketch4.addConstraint(Sketcher.Constraint("Radius", 58, Q("0.3366 mm")))
sketch4.addConstraint(Sketcher.Constraint("Radius", 60, Q("0.3366 mm")))
sketch4.addConstraint(Sketcher.Constraint("Radius", 63, Q("0.3366 mm")))
sketch4.addConstraint(Sketcher.Constraint("Radius", 65, Q("0.3366 mm")))
sketch4.addConstraint(Sketcher.Constraint("Radius", 67, Q("0.3366 mm")))
sketch4.addConstraint(Sketcher.Constraint("Radius", 69, Q("0.3366 mm")))
sketch4.addConstraint(Sketcher.Constraint("Radius", 71, Q("0.3366 mm")))
sketch4.addConstraint(Sketcher.Constraint("Radius", 73, Q("0.3366 mm")))
sketch4.addConstraint(Sketcher.Constraint("Radius", 75, Q("0.3366 mm")))
sketch4.addConstraint(Sketcher.Constraint("DistanceX", 15, 1, 15, 2, Q("5.947451 mm")))
sketch4.addConstraint(Sketcher.Constraint("DistanceX", 34, 1, 34, 2, Q("8.865819 mm")))
sketch4.addConstraint(Sketcher.Constraint("DistanceX", 49, 2, 49, 1, Q("5.947451 mm")))
sketch4.addConstraint(Sketcher.Constraint("DistanceX", 64, 2, 64, 1, Q("8.865819 mm")))
sketch4.addConstraint(Sketcher.Constraint("DistanceY", -1, 1, 14, 3, Q("1.0251 mm")))
sketch4.addConstraint(Sketcher.Constraint("DistanceY", -1, 1, 21, 3, Q("1.0251 mm")))
sketch4.addConstraint(Sketcher.Constraint("DistanceY", -1, 1, 28, 3, Q("1.0251 mm")))
sketch4.addConstraint(Sketcher.Constraint("DistanceY", -1, 1, 35, 3, Q("1.0251 mm")))
sketch4.addConstraint(Sketcher.Constraint("DistanceY", 60, 3, -1, 1, Q("19.533099 mm")))
sketch4.addConstraint(Sketcher.Constraint("DistanceY", -1, 1, 10, 2, Q("19.305799 mm")))
sketch4.addConstraint(Sketcher.Constraint("DistanceX", -1, 1, 12, 2, Q("2.747099 mm")))
sketch4.addConstraint(Sketcher.Constraint("DistanceY", -1, 1, 13, 2, Q("16.972199 mm")))
sketch4.addConstraint(Sketcher.Constraint("DistanceX", -1, 1, 59, 2, Q("2.747099 mm")))
sketch4.addConstraint(Sketcher.Constraint("Distance", 8, Q("13.636942 mm")))
sketch4.addConstraint(Sketcher.Constraint("Distance", 13, Q("12.360619 mm")))
sketch4.addConstraint(Sketcher.Constraint("Distance", 24, Q("13.22888 mm")))
sketch4.addConstraint(Sketcher.Constraint("Distance", 27, Q("12.11118 mm")))
sketch4.addConstraint(Sketcher.Constraint("Distance", 38, Q("11.827271 mm")))
sketch4.addConstraint(Sketcher.Constraint("Distance", 43, Q("18.180141 mm")))
sketch4.addConstraint(Sketcher.Constraint("Distance", 51, Q("12.11118 mm")))
sketch4.addConstraint(Sketcher.Constraint("Distance", 53, Q("13.22888 mm")))
sketch4.addConstraint(Sketcher.Constraint("Distance", 57, Q("13.636942 mm")))
sketch4.addConstraint(Sketcher.Constraint("Distance", 59, Q("12.360619 mm")))
sketch4.addConstraint(Sketcher.Constraint("Distance", 72, Q("18.180141 mm")))
sketch4.addConstraint(Sketcher.Constraint("Distance", 76, Q("11.827271 mm")))
sketch4.addConstraint(Sketcher.Constraint("DistanceX", 22, 1, 22, 2, Q("6.909944 mm")))
sketch4.addConstraint(Sketcher.Constraint("DistanceX", 36, 1, 36, 2, Q("8.675652 mm")))
sketch4.addConstraint(Sketcher.Constraint("DistanceX", 55, 2, 55, 1, Q("6.909944 mm")))
sketch4.addConstraint(Sketcher.Constraint("DistanceX", 70, 2, 70, 1, Q("8.675652 mm")))
sketch4.addConstraint(Sketcher.Constraint("DistanceY", -1, 1, 0, 3, Q("22.489371 mm")))
sketch4.addConstraint(Sketcher.Constraint("DistanceY", 3, 3, -1, 1, Q("23.510629 mm")))
sketch4.addConstraint(Sketcher.Constraint("DistanceY", -1, 1, 7, 3, Q("16.64418 mm")))
sketch4.addConstraint(Sketcher.Constraint("DistanceX", 9, 3, -1, 1, Q("2.28155 mm")))
sketch4.addConstraint(Sketcher.Constraint("DistanceX", -1, 1, 11, 3, Q("2.82262 mm")))
sketch4.addConstraint(Sketcher.Constraint("DistanceX", 18, 3, -1, 1, Q("13.26979 mm")))
sketch4.addConstraint(Sketcher.Constraint("DistanceY", -1, 1, 18, 3, Q("12.740748 mm")))
sketch4.addConstraint(Sketcher.Constraint("DistanceX", 21, 3, -1, 1, Q("12.041068 mm")))
sketch4.addConstraint(Sketcher.Constraint("DistanceX", -1, 1, 33, 3, Q("0.170948 mm")))
sketch4.addConstraint(Sketcher.Constraint("DistanceX", -1, 1, 37, 3, Q("21.48417 mm")))
sketch4.addConstraint(Sketcher.Constraint("DistanceX", -1, 1, 41, 3, Q("7.445328 mm")))
sketch4.addConstraint(Sketcher.Constraint("DistanceY", -1, 1, 41, 3, Q("18.39616 mm")))
sketch4.addConstraint(Sketcher.Constraint("DistanceX", 46, 3, -1, 1, Q("13.26979 mm")))
sketch4.addConstraint(Sketcher.Constraint("DistanceX", 50, 3, -1, 1, Q("12.041068 mm")))
sketch4.addConstraint(Sketcher.Constraint("DistanceX", 56, 3, -1, 1, Q("2.28155 mm")))
sketch4.addConstraint(Sketcher.Constraint("DistanceX", -1, 1, 60, 3, Q("2.82262 mm")))
sketch4.addConstraint(Sketcher.Constraint("DistanceX", -1, 1, 65, 3, Q("0.170948 mm")))
sketch4.addConstraint(Sketcher.Constraint("DistanceY", 67, 3, -1, 1, Q("17.142612 mm")))
sketch4.addConstraint(Sketcher.Constraint("DistanceX", -1, 1, 69, 3, Q("21.48417 mm")))
sketch4.addConstraint(Sketcher.Constraint("DistanceX", -1, 1, 73, 3, Q("7.445328 mm")))
sketch4.addConstraint(Sketcher.Constraint("DistanceY", 5, 1, -1, 1, Q("23.510629 mm")))
sketch4.addConstraint(Sketcher.Constraint("DistanceY", -1, 1, 7, 2, Q("16.472848 mm")))
sketch4.addConstraint(Sketcher.Constraint("DistanceX", 8, 2, -1, 1, Q("2.571282 mm")))
sketch4.addConstraint(Sketcher.Constraint("DistanceY", -1, 1, 8, 2, Q("4.734691 mm")))
sketch4.addConstraint(Sketcher.Constraint("DistanceX", 9, 2, -1, 1, Q("1.964019 mm")))
sketch4.addConstraint(Sketcher.Constraint("DistanceX", -1, 1, 11, 2, Q("2.82262 mm")))
sketch4.addConstraint(Sketcher.Constraint("DistanceX", 16, 2, -1, 1, Q("15.126322 mm")))
sketch4.addConstraint(Sketcher.Constraint("DistanceY", -1, 1, 16, 2, Q("0.963322 mm")))
sketch4.addConstraint(Sketcher.Constraint("DistanceY", -1, 1, 17, 2, Q("12.678969 mm")))
sketch4.addConstraint(Sketcher.Constraint("DistanceX", 18, 2, -1, 1, Q("13.26979 mm")))
sketch4.addConstraint(Sketcher.Constraint("DistanceX", 20, 2, -1, 1, Q("21.681139 mm")))
sketch4.addConstraint(Sketcher.Constraint("DistanceY", -1, 1, 20, 2, Q("1.217079 mm")))
sketch4.addConstraint(Sketcher.Constraint("DistanceX", 21, 2, -1, 1, Q("12.041068 mm")))
sketch4.addConstraint(Sketcher.Constraint("DistanceX", 26, 2, -1, 1, Q("10.969829 mm")))
sketch4.addConstraint(Sketcher.Constraint("DistanceY", -1, 1, 28, 2, Q("1.11156 mm")))
sketch4.addConstraint(Sketcher.Constraint("DistanceX", 32, 2, -1, 1, Q("0.152482 mm")))
sketch4.addConstraint(Sketcher.Constraint("DistanceX", -1, 1, 33, 2, Q("0.170948 mm")))
sketch4.addConstraint(Sketcher.Constraint("DistanceX", -1, 1, 36, 2, Q("21.48417 mm")))
sketch4.addConstraint(Sketcher.Constraint("DistanceX", -1, 1, 37, 2, Q("21.775051 mm")))
sketch4.addConstraint(Sketcher.Constraint("DistanceX", -1, 1, 40, 2, Q("7.66828 mm")))
sketch4.addConstraint(Sketcher.Constraint("DistanceX", -1, 1, 41, 2, Q("7.445328 mm")))
sketch4.addConstraint(Sketcher.Constraint("DistanceX", -1, 1, 42, 2, Q("7.123708 mm")))
sketch4.addConstraint(Sketcher.Constraint("DistanceX", 44, 2, -1, 1, Q("21.681139 mm")))
sketch4.addConstraint(Sketcher.Constraint("DistanceY", 45, 2, -1, 1, Q("13.048342 mm")))
sketch4.addConstraint(Sketcher.Constraint("DistanceX", 47, 2, -1, 1, Q("15.126322 mm")))
sketch4.addConstraint(Sketcher.Constraint("DistanceY", 50, 2, -1, 1, Q("1.179779 mm")))
sketch4.addConstraint(Sketcher.Constraint("DistanceX", 51, 2, -1, 1, Q("10.969829 mm")))
sketch4.addConstraint(Sketcher.Constraint("DistanceY", 51, 2, -1, 1, Q("13.209121 mm")))
sketch4.addConstraint(Sketcher.Constraint("DistanceY", 53, 2, -1, 1, Q("1.28077 mm")))
sketch4.addConstraint(Sketcher.Constraint("DistanceX", 55, 2, -1, 1, Q("12.041068 mm")))
sketch4.addConstraint(Sketcher.Constraint("DistanceX", 56, 2, -1, 1, Q("2.571282 mm")))
sketch4.addConstraint(Sketcher.Constraint("DistanceX", -1, 1, 60, 2, Q("3.140151 mm")))
sketch4.addConstraint(Sketcher.Constraint("DistanceX", 61, 2, -1, 1, Q("1.964019 mm")))
sketch4.addConstraint(Sketcher.Constraint("DistanceY", 61, 2, -1, 1, Q("4.909951 mm")))
sketch4.addConstraint(Sketcher.Constraint("DistanceX", 62, 2, -1, 1, Q("2.28155 mm")))
sketch4.addConstraint(Sketcher.Constraint("DistanceX", -1, 1, 64, 2, Q("0.170948 mm")))
sketch4.addConstraint(Sketcher.Constraint("DistanceX", 65, 2, -1, 1, Q("0.152482 mm")))
sketch4.addConstraint(Sketcher.Constraint("DistanceY", 65, 2, -1, 1, Q("1.23395 mm")))
sketch4.addConstraint(Sketcher.Constraint("DistanceY", 67, 2, -1, 1, Q("17.229071 mm")))
sketch4.addConstraint(Sketcher.Constraint("DistanceX", -1, 1, 69, 2, Q("21.48417 mm")))
sketch4.addConstraint(Sketcher.Constraint("DistanceX", -1, 1, 72, 2, Q("7.123708 mm")))
sketch4.addConstraint(Sketcher.Constraint("DistanceX", -1, 1, 73, 2, Q("7.66828 mm")))
sketch4.addConstraint(Sketcher.Constraint("DistanceY", 73, 2, -1, 1, Q("18.763949 mm")))
sketch4.addConstraint(Sketcher.Constraint("DistanceX", -1, 1, 76, 2, Q("21.775051 mm")))
sketch4.addConstraint(Sketcher.Constraint("DistanceY", 76, 2, -1, 1, Q("1.310089 mm")))
sketch4.addConstraint(Sketcher.Constraint("Distance", 20, Q("14.262974 mm")))
sketch4.addConstraint(Sketcher.Constraint("Distance", 29, Q("16.557425 mm")))
sketch4.addConstraint(Sketcher.Constraint("Distance", 32, Q("16.653506 mm")))
sketch4.addConstraint(Sketcher.Constraint("Distance", 40, Q("10.795033 mm")))
sketch4.addConstraint(Sketcher.Constraint("Distance", 45, Q("14.262974 mm")))
sketch4.addConstraint(Sketcher.Constraint("Distance", 47, Q("11.918103 mm")))
sketch4.addConstraint(Sketcher.Constraint("Distance", 66, Q("16.653506 mm")))
sketch4.addConstraint(Sketcher.Constraint("Distance", 68, Q("16.557425 mm")))
sketch4.addConstraint(Sketcher.Constraint("Distance", 74, Q("10.795033 mm")))
sketch4.addConstraint(Sketcher.Constraint("DistanceX", 0, 3, -1, 1, Q("22.510213 mm")))
sketch4.addConstraint(Sketcher.Constraint("DistanceX", -1, 1, 3, 3, Q("21.489787 mm")))
sketch4.addConstraint(Sketcher.Constraint("DistanceX", 23, 3, -1, 1, Q("5.131124 mm")))
sketch4.addConstraint(Sketcher.Constraint("DistanceX", 25, 3, -1, 1, Q("10.635504 mm")))
sketch4.addConstraint(Sketcher.Constraint("DistanceY", -1, 1, 25, 3, Q("13.054443 mm")))
sketch4.addConstraint(Sketcher.Constraint("DistanceX", -1, 1, 28, 3, Q("9.036768 mm")))
sketch4.addConstraint(Sketcher.Constraint("DistanceX", -1, 1, 30, 3, Q("4.783816 mm")))
sketch4.addConstraint(Sketcher.Constraint("DistanceY", -1, 1, 30, 3, Q("17.026998 mm")))
sketch4.addConstraint(Sketcher.Constraint("DistanceX", -1, 1, 35, 3, Q("12.808518 mm")))
sketch4.addConstraint(Sketcher.Constraint("DistanceX", -1, 1, 39, 3, Q("15.532783 mm")))
sketch4.addConstraint(Sketcher.Constraint("DistanceY", -1, 1, 39, 3, Q("11.245928 mm")))
sketch4.addConstraint(Sketcher.Constraint("DistanceX", 44, 3, -1, 1, Q("21.404655 mm")))
sketch4.addConstraint(Sketcher.Constraint("DistanceY", 44, 3, -1, 1, Q("1.140714 mm")))
sketch4.addConstraint(Sketcher.Constraint("DistanceX", 48, 3, -1, 1, Q("15.457204 mm")))
sketch4.addConstraint(Sketcher.Constraint("DistanceX", 52, 3, -1, 1, Q("10.635504 mm")))
sketch4.addConstraint(Sketcher.Constraint("DistanceX", 54, 3, -1, 1, Q("5.131124 mm")))
sketch4.addConstraint(Sketcher.Constraint("DistanceX", 58, 3, -1, 1, Q("9.222864 mm")))
sketch4.addConstraint(Sketcher.Constraint("DistanceY", 58, 3, -1, 1, Q("16.759795 mm")))
sketch4.addConstraint(Sketcher.Constraint("DistanceX", -1, 1, 63, 3, Q("9.036768 mm")))
sketch4.addConstraint(Sketcher.Constraint("DistanceX", -1, 1, 67, 3, Q("4.783816 mm")))
sketch4.addConstraint(Sketcher.Constraint("DistanceX", -1, 1, 71, 3, Q("12.808518 mm")))
sketch4.addConstraint(Sketcher.Constraint("DistanceX", -1, 1, 75, 3, Q("15.532782 mm")))
sketch4.addConstraint(Sketcher.Constraint("DistanceY", 75, 3, -1, 1, Q("11.361542 mm")))
sketch4.addConstraint(Sketcher.Constraint("DistanceX", -1, 1, 3, 1, Q("21.489787 mm")))
sketch4.addConstraint(Sketcher.Constraint("DistanceX", 14, 2, -1, 1, Q("21.404655 mm")))
sketch4.addConstraint(Sketcher.Constraint("DistanceX", 23, 2, -1, 1, Q("4.825046 mm")))
sketch4.addConstraint(Sketcher.Constraint("DistanceX", 25, 2, -1, 1, Q("10.635504 mm")))
sketch4.addConstraint(Sketcher.Constraint("DistanceX", -1, 1, 30, 2, Q("4.783816 mm")))
sketch4.addConstraint(Sketcher.Constraint("DistanceX", 48, 2, -1, 1, Q("15.457204 mm")))
pocket2 = body.newObject("PartDesign::Pocket", "Pocket001")
pocket2.Profile = sketch4
pocket2.Length = 0.2
pocket2.Reversed = True

doc.recompute()
